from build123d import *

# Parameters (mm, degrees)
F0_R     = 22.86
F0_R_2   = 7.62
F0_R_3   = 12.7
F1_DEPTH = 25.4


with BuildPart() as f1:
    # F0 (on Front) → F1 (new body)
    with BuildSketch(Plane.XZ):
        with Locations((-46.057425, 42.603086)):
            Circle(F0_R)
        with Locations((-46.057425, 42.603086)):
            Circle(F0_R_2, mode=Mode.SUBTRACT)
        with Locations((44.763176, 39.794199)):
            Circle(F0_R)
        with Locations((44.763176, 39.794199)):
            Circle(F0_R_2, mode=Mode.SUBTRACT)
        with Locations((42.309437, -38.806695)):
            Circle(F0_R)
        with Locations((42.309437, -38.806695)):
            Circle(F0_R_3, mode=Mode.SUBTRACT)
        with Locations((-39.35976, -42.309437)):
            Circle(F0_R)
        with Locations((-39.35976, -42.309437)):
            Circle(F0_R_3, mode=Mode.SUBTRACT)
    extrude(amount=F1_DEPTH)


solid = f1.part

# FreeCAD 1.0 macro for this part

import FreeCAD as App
import Part
import Sketcher
from FreeCAD import Vector
Q = App.Units.Quantity

doc = App.newDocument("Part")
params = doc.addObject("Spreadsheet::Sheet", "Params")
for row, (alias, value) in enumerate([
    ("sketch1_diameter", "1 in"),
    ("sketch1_diameter2", "1.8 in"),
    ("sketch1_diameter3", "0.6 in"),
    ("pad1_length", "1 in"),
], start=1):
    params.set(f"A{row}", alias)
    params.set(f"B{row}", "=" + value)
    params.setAlias(f"B{row}", alias)

body = doc.addObject("PartDesign::Body", "Body")
body.AllowCompound = True

# Sketch on XZ plane
sketch1 = doc.addObject("Sketcher::SketchObject", "Sketch")
body.addObject(sketch1)
sketch1.AttachmentSupport = (doc.XZ_Plane, [""])
sketch1.MapMode = "FlatFace"
sketch1.addGeometry([
    Part.Circle(Vector(-46, 43, 0), Vector(0, 0, 1), 23),  # 0
    Part.Circle(Vector(-46, 43, 0), Vector(0, 0, 1), 8),  # 1
    Part.Circle(Vector(45, 40, 0), Vector(0, 0, 1), 23),  # 2
    Part.Circle(Vector(45, 40, 0), Vector(0, 0, 1), 8),  # 3
    Part.Circle(Vector(42, -39, 0), Vector(0, 0, 1), 23),  # 4
    Part.Circle(Vector(42, -39, 0), Vector(0, 0, 1), 13),  # 5
    Part.Circle(Vector(-39, -42, 0), Vector(0, 0, 1), 23),  # 6
    Part.Circle(Vector(-39, -42, 0), Vector(0, 0, 1), 13),  # 7
], False)
sketch1.addConstraint([
    Sketcher.Constraint("Coincident", 1, 3, 0, 3),
    Sketcher.Constraint("Coincident", 3, 3, 2, 3),
    Sketcher.Constraint("Coincident", 5, 3, 4, 3),
    Sketcher.Constraint("Coincident", 7, 3, 6, 3),
    Sketcher.Constraint("Equal", 0, 2),
    Sketcher.Constraint("Equal", 1, 3),
    Sketcher.Constraint("Equal", 2, 4),
    Sketcher.Constraint("Equal", 4, 6),
    Sketcher.Constraint("Equal", 5, 7),
    Sketcher.Constraint("Diameter", 5, Q("1 in")),
    Sketcher.Constraint("Diameter", 0, Q("1.8 in")),
    Sketcher.Constraint("Diameter", 1, Q("0.6 in")),
    Sketcher.Constraint("DistanceY", -1, 1, 2, 3, 39.794199),
    Sketcher.Constraint("DistanceX", 0, 3, 2, 3, 90.820601),
    Sketcher.Constraint("DistanceX", 6, 3, -1, 1, 39.35976),
    Sketcher.Constraint("DistanceX", 4, 3, 2, 3, 2.453739),
    Sketcher.Constraint("DistanceY", 4, 3, 0, 3, 81.409781),
    Sketcher.Constraint("DistanceX", 0, 3, -1, 1, 46.057425),
    Sketcher.Constraint("DistanceY", -1, 1, 0, 3, 42.603086),
    Sketcher.Constraint("DistanceY", 6, 3, -1, 1, 42.309437),
])
sketch1.setExpression("Constraints[9]", "Params.sketch1_diameter")
sketch1.setExpression("Constraints[10]", "Params.sketch1_diameter2")
sketch1.setExpression("Constraints[11]", "Params.sketch1_diameter3")
pad1 = doc.addObject("PartDesign::Pad", "Pad")
body.addObject(pad1)
pad1.Profile = sketch1
pad1.setExpression("Length", "Params.pad1_length")

doc.recompute()
